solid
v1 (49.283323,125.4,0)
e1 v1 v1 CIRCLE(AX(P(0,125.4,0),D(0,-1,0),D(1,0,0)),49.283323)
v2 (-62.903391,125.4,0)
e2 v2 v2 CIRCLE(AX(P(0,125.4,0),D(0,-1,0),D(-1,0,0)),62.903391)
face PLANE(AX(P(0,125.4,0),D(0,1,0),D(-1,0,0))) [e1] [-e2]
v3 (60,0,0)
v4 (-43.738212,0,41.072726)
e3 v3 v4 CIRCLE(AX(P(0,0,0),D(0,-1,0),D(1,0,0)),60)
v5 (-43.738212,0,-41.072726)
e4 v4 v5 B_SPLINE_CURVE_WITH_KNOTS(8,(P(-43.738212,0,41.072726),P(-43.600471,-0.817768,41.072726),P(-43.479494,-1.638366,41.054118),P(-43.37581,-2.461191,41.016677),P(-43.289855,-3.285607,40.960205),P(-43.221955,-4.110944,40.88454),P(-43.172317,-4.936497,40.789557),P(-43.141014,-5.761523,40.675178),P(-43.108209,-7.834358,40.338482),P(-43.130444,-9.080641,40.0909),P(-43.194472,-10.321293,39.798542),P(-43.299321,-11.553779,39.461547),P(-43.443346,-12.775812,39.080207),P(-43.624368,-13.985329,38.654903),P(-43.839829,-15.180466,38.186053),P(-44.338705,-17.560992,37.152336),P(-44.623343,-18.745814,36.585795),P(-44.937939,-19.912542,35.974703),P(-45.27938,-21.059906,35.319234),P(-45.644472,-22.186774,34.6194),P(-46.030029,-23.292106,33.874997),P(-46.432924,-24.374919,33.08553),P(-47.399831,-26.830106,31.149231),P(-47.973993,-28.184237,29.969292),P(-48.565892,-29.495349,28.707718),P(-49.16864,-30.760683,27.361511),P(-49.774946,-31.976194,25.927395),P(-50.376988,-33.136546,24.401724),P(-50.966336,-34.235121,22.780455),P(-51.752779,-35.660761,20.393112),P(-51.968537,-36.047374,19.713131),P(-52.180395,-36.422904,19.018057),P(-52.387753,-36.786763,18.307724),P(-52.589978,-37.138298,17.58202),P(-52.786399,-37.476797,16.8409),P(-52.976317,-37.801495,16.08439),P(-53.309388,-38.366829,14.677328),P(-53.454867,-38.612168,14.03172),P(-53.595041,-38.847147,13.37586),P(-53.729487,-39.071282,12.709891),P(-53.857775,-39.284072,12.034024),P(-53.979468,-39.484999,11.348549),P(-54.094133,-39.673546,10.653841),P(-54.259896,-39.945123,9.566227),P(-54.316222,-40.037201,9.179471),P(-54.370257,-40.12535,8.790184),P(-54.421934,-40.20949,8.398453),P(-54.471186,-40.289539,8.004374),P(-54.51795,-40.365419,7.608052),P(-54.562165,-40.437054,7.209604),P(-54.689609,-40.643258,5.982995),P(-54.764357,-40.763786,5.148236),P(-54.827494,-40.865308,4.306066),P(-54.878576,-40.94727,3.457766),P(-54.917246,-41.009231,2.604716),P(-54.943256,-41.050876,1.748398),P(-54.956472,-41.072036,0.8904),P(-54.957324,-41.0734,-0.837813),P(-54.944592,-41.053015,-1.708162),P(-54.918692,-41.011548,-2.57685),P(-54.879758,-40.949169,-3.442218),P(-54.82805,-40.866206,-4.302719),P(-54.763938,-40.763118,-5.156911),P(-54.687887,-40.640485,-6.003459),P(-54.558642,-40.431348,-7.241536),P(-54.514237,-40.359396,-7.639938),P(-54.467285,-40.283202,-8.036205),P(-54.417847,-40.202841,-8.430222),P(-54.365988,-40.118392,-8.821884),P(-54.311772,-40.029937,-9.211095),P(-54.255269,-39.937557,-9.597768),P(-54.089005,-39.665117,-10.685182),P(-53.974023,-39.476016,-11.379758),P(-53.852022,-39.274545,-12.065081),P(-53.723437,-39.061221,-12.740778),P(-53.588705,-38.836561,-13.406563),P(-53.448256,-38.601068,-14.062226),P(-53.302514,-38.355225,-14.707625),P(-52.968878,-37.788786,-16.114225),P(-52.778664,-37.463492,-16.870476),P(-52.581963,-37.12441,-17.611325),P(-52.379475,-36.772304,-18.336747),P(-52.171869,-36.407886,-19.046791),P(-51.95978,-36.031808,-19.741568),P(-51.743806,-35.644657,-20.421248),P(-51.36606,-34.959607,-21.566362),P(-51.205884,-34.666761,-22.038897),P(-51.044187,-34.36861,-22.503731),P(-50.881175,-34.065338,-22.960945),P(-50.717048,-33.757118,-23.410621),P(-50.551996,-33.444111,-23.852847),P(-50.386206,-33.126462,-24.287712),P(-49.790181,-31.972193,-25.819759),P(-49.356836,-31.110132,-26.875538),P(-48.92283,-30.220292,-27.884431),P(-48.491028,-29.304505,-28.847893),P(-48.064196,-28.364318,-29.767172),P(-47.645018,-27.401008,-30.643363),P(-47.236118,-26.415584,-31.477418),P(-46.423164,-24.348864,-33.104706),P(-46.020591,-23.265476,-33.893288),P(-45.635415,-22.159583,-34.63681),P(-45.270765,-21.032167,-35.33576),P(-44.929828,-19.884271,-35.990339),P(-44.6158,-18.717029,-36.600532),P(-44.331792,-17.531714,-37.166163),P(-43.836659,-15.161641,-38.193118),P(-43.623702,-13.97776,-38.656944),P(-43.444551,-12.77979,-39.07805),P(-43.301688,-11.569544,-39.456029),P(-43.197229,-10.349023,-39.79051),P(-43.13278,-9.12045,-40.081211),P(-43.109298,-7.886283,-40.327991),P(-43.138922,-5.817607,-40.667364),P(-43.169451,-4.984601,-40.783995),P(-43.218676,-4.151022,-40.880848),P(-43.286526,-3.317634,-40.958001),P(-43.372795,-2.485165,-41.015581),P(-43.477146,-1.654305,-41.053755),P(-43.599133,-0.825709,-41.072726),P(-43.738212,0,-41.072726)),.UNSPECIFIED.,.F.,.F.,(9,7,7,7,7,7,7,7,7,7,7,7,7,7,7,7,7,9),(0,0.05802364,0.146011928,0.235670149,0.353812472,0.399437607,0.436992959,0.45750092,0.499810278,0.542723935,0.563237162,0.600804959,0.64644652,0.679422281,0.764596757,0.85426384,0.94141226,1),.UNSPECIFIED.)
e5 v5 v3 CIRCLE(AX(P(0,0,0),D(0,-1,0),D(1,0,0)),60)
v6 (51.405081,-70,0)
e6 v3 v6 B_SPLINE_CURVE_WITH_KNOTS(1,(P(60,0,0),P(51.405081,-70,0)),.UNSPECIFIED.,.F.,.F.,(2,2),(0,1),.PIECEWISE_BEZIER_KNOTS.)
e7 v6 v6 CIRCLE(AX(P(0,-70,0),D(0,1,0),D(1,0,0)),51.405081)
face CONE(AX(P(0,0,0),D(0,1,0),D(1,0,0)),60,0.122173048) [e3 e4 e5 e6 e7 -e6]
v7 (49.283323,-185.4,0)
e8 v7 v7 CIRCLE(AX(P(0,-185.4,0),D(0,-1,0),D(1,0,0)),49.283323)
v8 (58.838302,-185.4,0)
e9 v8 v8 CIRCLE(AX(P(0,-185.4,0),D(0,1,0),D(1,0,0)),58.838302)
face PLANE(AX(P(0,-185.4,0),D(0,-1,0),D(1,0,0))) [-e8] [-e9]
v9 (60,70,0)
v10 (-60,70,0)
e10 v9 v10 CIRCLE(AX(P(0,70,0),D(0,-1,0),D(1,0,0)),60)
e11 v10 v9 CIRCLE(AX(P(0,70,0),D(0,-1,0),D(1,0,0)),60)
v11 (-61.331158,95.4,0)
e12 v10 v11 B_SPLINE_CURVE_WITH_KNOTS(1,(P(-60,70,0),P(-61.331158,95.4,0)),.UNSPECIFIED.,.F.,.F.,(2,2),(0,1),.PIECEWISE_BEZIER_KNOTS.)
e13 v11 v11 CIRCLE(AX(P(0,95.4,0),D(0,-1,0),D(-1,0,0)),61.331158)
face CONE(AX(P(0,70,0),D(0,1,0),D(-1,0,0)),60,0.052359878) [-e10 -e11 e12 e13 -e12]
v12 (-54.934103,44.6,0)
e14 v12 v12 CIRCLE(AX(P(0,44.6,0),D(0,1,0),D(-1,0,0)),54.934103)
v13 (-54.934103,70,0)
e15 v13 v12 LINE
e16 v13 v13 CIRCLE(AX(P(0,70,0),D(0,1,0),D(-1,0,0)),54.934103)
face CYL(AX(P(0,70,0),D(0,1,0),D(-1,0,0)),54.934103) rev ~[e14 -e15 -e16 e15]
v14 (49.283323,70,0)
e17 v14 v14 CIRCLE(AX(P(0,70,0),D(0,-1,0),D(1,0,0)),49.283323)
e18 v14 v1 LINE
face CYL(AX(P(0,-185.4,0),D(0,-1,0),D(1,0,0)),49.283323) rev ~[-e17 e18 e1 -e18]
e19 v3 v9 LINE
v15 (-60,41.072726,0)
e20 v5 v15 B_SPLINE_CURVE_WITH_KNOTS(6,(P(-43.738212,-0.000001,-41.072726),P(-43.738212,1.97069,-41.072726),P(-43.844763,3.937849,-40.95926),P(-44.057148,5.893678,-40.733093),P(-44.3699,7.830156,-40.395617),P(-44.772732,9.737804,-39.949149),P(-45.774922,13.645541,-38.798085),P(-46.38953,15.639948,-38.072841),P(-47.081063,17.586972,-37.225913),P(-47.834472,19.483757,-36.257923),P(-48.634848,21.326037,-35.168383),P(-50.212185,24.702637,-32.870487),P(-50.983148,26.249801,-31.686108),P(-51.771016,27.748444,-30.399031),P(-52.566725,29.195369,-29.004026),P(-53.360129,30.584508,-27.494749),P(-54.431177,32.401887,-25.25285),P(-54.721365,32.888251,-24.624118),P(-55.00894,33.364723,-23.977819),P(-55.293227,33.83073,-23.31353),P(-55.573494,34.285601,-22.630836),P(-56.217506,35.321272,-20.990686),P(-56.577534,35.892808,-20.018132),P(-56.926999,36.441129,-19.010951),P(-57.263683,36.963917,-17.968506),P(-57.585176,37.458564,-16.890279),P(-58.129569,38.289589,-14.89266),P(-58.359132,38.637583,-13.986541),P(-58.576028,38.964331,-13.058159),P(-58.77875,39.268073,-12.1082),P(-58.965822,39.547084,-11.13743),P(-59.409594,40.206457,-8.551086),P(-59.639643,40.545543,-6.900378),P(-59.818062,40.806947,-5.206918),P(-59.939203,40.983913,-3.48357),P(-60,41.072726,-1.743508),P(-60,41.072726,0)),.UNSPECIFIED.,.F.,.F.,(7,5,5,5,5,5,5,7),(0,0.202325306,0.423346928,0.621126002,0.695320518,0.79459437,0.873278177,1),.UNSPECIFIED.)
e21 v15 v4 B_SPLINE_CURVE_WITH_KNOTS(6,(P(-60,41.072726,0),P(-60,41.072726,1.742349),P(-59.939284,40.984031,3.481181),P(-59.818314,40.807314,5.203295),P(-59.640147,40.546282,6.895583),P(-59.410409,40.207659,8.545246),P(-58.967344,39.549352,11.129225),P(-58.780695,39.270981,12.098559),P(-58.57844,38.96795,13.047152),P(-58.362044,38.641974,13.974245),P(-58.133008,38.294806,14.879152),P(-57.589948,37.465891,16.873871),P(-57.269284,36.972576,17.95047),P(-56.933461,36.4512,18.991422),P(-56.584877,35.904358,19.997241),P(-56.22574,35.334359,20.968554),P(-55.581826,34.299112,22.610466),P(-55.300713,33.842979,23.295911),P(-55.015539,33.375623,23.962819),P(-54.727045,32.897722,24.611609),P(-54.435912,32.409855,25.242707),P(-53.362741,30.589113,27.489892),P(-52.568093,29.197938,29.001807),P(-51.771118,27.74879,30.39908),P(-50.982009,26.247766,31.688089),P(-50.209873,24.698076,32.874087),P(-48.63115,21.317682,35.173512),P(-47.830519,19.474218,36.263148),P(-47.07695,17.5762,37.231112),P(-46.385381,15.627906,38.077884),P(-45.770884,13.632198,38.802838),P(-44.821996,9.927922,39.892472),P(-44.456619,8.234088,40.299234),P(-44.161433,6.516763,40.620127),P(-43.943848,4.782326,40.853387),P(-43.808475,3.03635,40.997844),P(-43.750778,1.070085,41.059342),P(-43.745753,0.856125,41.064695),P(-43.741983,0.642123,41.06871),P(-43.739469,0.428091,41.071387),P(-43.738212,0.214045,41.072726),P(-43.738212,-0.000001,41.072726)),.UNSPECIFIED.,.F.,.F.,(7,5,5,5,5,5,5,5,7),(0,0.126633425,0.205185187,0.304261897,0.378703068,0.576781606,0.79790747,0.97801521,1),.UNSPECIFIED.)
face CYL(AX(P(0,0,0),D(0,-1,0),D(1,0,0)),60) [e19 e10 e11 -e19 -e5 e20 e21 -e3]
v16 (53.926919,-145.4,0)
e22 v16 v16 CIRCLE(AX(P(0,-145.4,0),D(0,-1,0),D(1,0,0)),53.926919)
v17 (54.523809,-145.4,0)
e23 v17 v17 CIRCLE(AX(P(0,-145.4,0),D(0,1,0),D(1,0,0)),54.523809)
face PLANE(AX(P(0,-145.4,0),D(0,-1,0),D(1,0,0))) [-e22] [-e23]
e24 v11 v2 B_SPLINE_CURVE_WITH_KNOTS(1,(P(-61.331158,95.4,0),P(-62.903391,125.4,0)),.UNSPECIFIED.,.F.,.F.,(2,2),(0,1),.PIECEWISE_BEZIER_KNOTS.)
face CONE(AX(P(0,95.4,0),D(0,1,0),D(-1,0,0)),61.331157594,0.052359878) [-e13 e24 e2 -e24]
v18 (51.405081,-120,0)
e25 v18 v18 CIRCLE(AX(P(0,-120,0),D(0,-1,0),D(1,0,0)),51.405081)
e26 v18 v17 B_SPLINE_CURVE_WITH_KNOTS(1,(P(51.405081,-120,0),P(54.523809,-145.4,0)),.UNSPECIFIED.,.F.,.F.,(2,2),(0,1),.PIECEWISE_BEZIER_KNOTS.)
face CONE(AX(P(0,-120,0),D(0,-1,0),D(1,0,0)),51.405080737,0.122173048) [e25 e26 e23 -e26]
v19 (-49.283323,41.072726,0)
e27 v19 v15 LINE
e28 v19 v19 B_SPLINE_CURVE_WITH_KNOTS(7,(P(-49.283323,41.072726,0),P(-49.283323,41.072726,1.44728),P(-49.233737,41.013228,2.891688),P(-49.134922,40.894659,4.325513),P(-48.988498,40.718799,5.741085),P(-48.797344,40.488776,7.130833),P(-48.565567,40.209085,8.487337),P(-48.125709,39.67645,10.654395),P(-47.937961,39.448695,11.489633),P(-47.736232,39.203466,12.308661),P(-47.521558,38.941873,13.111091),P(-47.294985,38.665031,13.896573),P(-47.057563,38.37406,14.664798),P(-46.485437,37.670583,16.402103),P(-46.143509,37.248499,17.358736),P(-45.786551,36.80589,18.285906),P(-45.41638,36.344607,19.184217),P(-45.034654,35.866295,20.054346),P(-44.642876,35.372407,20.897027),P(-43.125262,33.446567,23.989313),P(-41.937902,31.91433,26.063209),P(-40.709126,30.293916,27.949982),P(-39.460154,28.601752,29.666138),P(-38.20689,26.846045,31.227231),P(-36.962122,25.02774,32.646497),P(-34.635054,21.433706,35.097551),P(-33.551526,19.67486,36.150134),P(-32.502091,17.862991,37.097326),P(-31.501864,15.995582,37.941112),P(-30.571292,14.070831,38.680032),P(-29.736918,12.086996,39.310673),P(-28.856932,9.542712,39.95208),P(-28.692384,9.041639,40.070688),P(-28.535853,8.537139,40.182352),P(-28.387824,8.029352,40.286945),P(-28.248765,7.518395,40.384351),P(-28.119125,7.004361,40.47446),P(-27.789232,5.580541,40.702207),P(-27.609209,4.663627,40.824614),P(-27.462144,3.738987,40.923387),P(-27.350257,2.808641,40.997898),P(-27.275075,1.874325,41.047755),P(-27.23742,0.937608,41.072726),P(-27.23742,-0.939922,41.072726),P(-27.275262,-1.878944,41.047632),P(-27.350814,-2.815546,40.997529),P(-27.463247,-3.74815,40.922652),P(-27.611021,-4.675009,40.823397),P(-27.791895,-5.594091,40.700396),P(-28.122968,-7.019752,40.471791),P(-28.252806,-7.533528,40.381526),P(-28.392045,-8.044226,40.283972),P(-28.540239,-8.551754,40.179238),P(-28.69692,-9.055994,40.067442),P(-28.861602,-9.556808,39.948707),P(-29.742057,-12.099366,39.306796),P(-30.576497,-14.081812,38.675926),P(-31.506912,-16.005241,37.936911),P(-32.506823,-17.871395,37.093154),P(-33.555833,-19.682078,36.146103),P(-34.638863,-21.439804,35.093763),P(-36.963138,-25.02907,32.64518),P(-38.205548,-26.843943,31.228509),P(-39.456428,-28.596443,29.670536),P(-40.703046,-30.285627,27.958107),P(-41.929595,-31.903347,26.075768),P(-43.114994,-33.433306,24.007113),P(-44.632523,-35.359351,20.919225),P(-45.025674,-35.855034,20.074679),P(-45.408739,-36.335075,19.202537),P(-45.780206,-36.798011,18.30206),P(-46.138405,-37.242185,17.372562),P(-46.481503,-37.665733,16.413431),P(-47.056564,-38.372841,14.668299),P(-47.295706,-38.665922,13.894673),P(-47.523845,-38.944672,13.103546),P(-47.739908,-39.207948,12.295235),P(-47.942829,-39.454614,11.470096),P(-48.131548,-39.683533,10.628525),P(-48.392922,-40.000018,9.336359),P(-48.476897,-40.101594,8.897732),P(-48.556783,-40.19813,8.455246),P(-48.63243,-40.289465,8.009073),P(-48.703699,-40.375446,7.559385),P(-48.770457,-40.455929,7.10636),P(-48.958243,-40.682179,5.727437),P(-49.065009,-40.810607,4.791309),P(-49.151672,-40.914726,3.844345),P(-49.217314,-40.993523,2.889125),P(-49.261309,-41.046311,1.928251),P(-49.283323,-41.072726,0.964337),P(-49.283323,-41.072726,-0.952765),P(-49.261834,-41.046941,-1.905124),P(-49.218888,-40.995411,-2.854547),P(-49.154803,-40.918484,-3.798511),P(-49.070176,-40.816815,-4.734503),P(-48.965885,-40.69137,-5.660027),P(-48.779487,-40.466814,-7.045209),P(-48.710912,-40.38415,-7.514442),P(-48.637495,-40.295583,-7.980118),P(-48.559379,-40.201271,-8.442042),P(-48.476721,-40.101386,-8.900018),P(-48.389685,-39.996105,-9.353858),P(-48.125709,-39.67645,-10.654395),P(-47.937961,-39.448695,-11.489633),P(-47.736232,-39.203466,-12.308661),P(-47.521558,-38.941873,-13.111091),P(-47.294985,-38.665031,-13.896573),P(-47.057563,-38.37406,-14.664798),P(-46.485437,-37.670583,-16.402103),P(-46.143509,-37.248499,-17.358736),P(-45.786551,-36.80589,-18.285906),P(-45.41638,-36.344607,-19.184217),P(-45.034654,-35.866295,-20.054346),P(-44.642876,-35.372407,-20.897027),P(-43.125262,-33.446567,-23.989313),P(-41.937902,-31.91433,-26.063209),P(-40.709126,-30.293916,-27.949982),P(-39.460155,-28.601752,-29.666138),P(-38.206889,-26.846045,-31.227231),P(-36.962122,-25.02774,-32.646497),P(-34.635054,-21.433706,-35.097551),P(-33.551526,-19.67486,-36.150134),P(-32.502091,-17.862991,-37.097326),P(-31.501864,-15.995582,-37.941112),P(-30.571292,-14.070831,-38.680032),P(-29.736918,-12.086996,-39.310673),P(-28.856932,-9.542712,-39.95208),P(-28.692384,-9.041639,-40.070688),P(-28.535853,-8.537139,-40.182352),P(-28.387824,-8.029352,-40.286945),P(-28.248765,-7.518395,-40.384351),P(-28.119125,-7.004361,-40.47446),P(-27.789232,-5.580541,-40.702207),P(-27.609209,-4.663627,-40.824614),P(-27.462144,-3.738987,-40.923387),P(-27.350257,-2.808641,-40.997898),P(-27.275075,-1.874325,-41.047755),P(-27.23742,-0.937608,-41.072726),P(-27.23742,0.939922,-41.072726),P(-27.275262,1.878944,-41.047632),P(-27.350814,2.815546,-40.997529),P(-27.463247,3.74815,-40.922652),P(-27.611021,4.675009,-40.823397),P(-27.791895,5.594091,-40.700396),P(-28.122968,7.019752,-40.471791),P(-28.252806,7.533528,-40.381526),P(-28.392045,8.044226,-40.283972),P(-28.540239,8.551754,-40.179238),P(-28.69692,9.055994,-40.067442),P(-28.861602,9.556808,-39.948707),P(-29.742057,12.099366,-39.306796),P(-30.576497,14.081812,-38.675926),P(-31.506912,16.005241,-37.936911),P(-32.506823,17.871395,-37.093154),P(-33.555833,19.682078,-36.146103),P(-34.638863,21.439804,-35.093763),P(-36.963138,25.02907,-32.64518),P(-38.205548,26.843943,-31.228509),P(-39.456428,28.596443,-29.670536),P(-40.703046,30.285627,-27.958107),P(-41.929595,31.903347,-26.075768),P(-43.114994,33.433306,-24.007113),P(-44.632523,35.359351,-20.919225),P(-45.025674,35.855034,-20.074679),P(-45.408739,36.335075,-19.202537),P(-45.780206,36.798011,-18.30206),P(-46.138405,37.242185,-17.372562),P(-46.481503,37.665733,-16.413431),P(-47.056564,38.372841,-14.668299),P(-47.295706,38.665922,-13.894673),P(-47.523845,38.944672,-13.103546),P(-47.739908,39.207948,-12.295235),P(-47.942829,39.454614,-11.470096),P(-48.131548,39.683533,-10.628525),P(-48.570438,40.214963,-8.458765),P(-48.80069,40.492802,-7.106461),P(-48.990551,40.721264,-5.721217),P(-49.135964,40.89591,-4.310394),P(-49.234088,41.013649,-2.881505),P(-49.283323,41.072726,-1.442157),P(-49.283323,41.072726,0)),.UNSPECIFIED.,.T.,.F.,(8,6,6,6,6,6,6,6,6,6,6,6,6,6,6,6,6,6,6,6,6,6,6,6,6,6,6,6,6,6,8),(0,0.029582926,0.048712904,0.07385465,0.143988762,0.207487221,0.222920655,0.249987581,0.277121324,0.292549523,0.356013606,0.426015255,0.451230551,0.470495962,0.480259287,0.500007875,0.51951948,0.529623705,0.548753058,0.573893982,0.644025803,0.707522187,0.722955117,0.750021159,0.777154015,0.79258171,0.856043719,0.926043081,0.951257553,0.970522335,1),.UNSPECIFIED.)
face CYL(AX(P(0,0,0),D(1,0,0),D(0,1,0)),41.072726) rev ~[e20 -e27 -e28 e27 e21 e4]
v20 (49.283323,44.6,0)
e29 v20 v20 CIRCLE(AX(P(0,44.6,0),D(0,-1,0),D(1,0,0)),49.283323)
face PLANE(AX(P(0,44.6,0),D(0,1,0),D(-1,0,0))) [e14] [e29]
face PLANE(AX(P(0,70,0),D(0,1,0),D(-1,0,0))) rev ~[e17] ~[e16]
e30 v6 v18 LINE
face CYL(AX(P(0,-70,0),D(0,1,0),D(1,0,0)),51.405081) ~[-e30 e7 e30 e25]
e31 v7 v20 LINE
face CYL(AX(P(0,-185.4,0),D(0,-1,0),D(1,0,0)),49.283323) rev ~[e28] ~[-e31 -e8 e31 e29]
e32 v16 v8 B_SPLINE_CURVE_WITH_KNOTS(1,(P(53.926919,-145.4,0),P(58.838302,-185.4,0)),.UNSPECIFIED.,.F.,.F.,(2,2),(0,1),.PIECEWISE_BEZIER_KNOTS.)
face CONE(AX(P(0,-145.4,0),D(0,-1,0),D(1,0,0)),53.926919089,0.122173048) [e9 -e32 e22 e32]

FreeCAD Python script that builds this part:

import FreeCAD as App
import Part
import Sketcher

doc = App.newDocument("Part")
body = doc.addObject("PartDesign::Body", "Body")

sketch1 = doc.addObject("Sketcher::SketchObject", "Sketch")
body.addObject(sketch1)
sketch1.AttachmentSupport = (doc.XZ_Plane, [""])
sketch1.MapMode = "FlatFace"
sketch1.addGeometry(Part.Circle(App.Vector(0, 0, 0), App.Vector(0, 0, 1), 60), False)
sketch1.addConstraint(Sketcher.Constraint("Coincident", 0, 3, -1, 1))
sketch1.addConstraint(Sketcher.Constraint("Diameter", 0, 120.0))
pad1 = doc.addObject("PartDesign::Pad", "Pad")
body.addObject(pad1)
pad1.Profile = sketch1
pad1.Length = 70
pad1.Reversed = True

sketch2 = doc.addObject("Sketcher::SketchObject", "Sketch001")
body.addObject(sketch2)
sketch2.AttachmentSupport = (doc.XZ_Plane, [""])
sketch2.MapMode = "FlatFace"
sketch2.addGeometry(Part.Circle(App.Vector(0, 0, 0), App.Vector(0, 0, 1), 60), False)
sketch2.addConstraint(Sketcher.Constraint("Coincident", 0, 3, -1, 1))
sketch2.addConstraint(Sketcher.Constraint("Diameter", 0, 120.0))
pad2 = doc.addObject("PartDesign::Pad", "Pad001")
body.addObject(pad2)
pad2.Profile = sketch2
pad2.Length = 70
pad2.TaperAngle = -7

sketch3 = doc.addObject("Sketcher::SketchObject", "Sketch002")
body.addObject(sketch3)
sketch3.AttachmentSupport = (doc.XZ_Plane, [""])
sketch3.MapMode = "FlatFace"
sketch3.AttachmentOffset = App.Placement(App.Vector(0, 0, -70), App.Rotation())
sketch3.addGeometry(Part.Circle(App.Vector(0, 0, 0), App.Vector(0, 0, 1), 55), False)
sketch3.addConstraint(Sketcher.Constraint("Coincident", 0, 3, -1, 1))
sketch3.addConstraint(Sketcher.Constraint("Diameter", 0, 109.868206))
pocket1 = doc.addObject("PartDesign::Pocket", "Pocket")
body.addObject(pocket1)
pocket1.Profile = sketch3
pocket1.Length = 25.4
pocket1.Reversed = True

sketch4 = doc.addObject("Sketcher::SketchObject", "Sketch003")
body.addObject(sketch4)
sketch4.AttachmentSupport = (doc.XZ_Plane, [""])
sketch4.MapMode = "FlatFace"
sketch4.AttachmentOffset = App.Placement(App.Vector(0, 0, 70), App.Rotation())
sketch4.addGeometry(Part.Circle(App.Vector(0, 0, 0), App.Vector(0, 0, 1), 48), False)
sketch4.addConstraint(Sketcher.Constraint("Coincident", 0, 3, -1, 1))
sketch4.addConstraint(Sketcher.Constraint("Diameter", 0, 95.923517))
pocket2 = doc.addObject("PartDesign::Pocket", "Pocket001")
body.addObject(pocket2)
pocket2.Profile = sketch4
pocket2.Length = 205.994

sketch5 = doc.addObject("Sketcher::SketchObject", "Sketch004")
body.addObject(sketch5)
sketch5.AttachmentSupport = (doc.XZ_Plane, [""])
sketch5.MapMode = "FlatFace"
sketch5.AttachmentOffset = App.Placement(App.Vector(0, 0, 70), App.Rotation())
sketch5.addGeometry(Part.Circle(App.Vector(0, 0, 0), App.Vector(0, 0, 1), 51), False)
sketch5.addConstraint(Sketcher.Constraint("Coincident", 0, 3, -1, 1))
sketch5.addConstraint(Sketcher.Constraint("Diameter", 0, 102.810161))
pad3 = doc.addObject("PartDesign::Pad", "Pad002")
body.addObject(pad3)
pad3.Profile = sketch5
pad3.Length = 50

sketch6 = doc.addObject("Sketcher::SketchObject", "Sketch005")
body.addObject(sketch6)
sketch6.AttachmentSupport = (doc.XZ_Plane, [""])
sketch6.MapMode = "FlatFace"
sketch6.AttachmentOffset = App.Placement(App.Vector(0, 0, 120), App.Rotation())
sketch6.addGeometry(Part.Circle(App.Vector(0, 0, 0), App.Vector(0, 0, 1), 51), False)
sketch6.addConstraint(Sketcher.Constraint("Coincident", 0, 3, -1, 1))
sketch6.addConstraint(Sketcher.Constraint("Diameter", 0, 102.810161))
pad4 = doc.addObject("PartDesign::Pad", "Pad003")
body.addObject(pad4)
pad4.Profile = sketch6
pad4.Length = 25.4
pad4.TaperAngle = 7

sketch7 = doc.addObject("Sketcher::SketchObject", "Sketch006")
body.addObject(sketch7)
sketch7.AttachmentSupport = (doc.XZ_Plane, [""])
sketch7.MapMode = "FlatFace"
sketch7.AttachmentOffset = App.Placement(App.Vector(0, 0, 145.4), App.Rotation())
sketch7.addGeometry(Part.Circle(App.Vector(0, 0, 0), App.Vector(0, 0, 1), 54), False)
sketch7.addConstraint(Sketcher.Constraint("Coincident", 0, 3, -1, 1))
sketch7.addConstraint(Sketcher.Constraint("Diameter", 0, 107.853838))
pad5 = doc.addObject("PartDesign::Pad", "Pad004")
body.addObject(pad5)
pad5.Profile = sketch7
pad5.Length = 40
pad5.TaperAngle = 7

sketch8 = doc.addObject("Sketcher::SketchObject", "Sketch007")
body.addObject(sketch8)
sketch8.AttachmentSupport = (doc.XZ_Plane, [""])
sketch8.MapMode = "FlatFace"
sketch8.AttachmentOffset = App.Placement(App.Vector(0, 0, -70), App.Rotation())
sketch8.addGeometry(Part.Circle(App.Vector(0, 0, 0), App.Vector(0, 0, 1), 60), False)
sketch8.addConstraint(Sketcher.Constraint("Coincident", 0, 3, -1, 1))
sketch8.addConstraint(Sketcher.Constraint("Diameter", 0, 120.0))
pad6 = doc.addObject("PartDesign::Pad", "Pad005")
body.addObject(pad6)
pad6.Profile = sketch8
pad6.Length = 25.4
pad6.Reversed = True
pad6.TaperAngle = 3

sketch9 = doc.addObject("Sketcher::SketchObject", "Sketch008")
body.addObject(sketch9)
sketch9.AttachmentSupport = (doc.XZ_Plane, [""])
sketch9.MapMode = "FlatFace"
sketch9.AttachmentOffset = App.Placement(App.Vector(0, 0, -95.4), App.Rotation())
sketch9.addGeometry(Part.Circle(App.Vector(0, 0, 0), App.Vector(0, 0, 1), 61), False)
sketch9.addConstraint(Sketcher.Constraint("Coincident", 0, 3, -1, 1))
sketch9.addConstraint(Sketcher.Constraint("Diameter", 0, 122.662315))
pad7 = doc.addObject("PartDesign::Pad", "Pad006")
body.addObject(pad7)
pad7.Profile = sketch9
pad7.Length = 30
pad7.Reversed = True
pad7.TaperAngle = 3

sketch10 = doc.addObject("Sketcher::SketchObject", "Sketch009")
body.addObject(sketch10)
sketch10.AttachmentSupport = (doc.XZ_Plane, [""])
sketch10.MapMode = "FlatFace"
sketch10.AttachmentOffset = App.Placement(App.Vector(0, 0, 185.4), App.Rotation())
sketch10.addGeometry(Part.Circle(App.Vector(0, 0, 0), App.Vector(0, 0, 1), 47), False)
sketch10.addConstraint(Sketcher.Constraint("Coincident", 0, 3, -1, 1))
sketch10.addConstraint(Sketcher.Constraint("Diameter", 0, 93.1006))
pocket3 = doc.addObject("PartDesign::Pocket", "Pocket002")
body.addObject(pocket3)
pocket3.Profile = sketch10
pocket3.Length = 374.396

sketch11 = doc.addObject("Sketcher::SketchObject", "Sketch010")
body.addObject(sketch11)
sketch11.AttachmentSupport = (doc.XZ_Plane, [""])
sketch11.MapMode = "FlatFace"
sketch11.AttachmentOffset = App.Placement(App.Vector(0, 0, 185.4), App.Rotation())
sketch11.addGeometry(Part.Circle(App.Vector(0, 0, 0), App.Vector(0, 0, 1), 49), False)
sketch11.addConstraint(Sketcher.Constraint("Coincident", 0, 3, -1, 1))
sketch11.addConstraint(Sketcher.Constraint("Diameter", 0, 98.566645))
pocket4 = doc.addObject("PartDesign::Pocket", "Pocket003")
body.addObject(pocket4)
pocket4.Profile = sketch11
pocket4.Length = 359.918

sketch12 = doc.addObject("Sketcher::SketchObject", "Sketch011")
body.addObject(sketch12)
sketch12.AttachmentSupport = (doc.YZ_Plane, [""])
sketch12.MapMode = "FlatFace"
sketch12.addGeometry(Part.Circle(App.Vector(0, 0, 0), App.Vector(0, 0, 1), 41), False)
sketch12.addConstraint(Sketcher.Constraint("Coincident", 0, 3, -1, 1))
sketch12.addConstraint(Sketcher.Constraint("Diameter", 0, 82.145452))
pocket5 = doc.addObject("PartDesign::Pocket", "Pocket004")
body.addObject(pocket5)
pocket5.Profile = sketch12
pocket5.Length = 101.854

doc.recompute()
